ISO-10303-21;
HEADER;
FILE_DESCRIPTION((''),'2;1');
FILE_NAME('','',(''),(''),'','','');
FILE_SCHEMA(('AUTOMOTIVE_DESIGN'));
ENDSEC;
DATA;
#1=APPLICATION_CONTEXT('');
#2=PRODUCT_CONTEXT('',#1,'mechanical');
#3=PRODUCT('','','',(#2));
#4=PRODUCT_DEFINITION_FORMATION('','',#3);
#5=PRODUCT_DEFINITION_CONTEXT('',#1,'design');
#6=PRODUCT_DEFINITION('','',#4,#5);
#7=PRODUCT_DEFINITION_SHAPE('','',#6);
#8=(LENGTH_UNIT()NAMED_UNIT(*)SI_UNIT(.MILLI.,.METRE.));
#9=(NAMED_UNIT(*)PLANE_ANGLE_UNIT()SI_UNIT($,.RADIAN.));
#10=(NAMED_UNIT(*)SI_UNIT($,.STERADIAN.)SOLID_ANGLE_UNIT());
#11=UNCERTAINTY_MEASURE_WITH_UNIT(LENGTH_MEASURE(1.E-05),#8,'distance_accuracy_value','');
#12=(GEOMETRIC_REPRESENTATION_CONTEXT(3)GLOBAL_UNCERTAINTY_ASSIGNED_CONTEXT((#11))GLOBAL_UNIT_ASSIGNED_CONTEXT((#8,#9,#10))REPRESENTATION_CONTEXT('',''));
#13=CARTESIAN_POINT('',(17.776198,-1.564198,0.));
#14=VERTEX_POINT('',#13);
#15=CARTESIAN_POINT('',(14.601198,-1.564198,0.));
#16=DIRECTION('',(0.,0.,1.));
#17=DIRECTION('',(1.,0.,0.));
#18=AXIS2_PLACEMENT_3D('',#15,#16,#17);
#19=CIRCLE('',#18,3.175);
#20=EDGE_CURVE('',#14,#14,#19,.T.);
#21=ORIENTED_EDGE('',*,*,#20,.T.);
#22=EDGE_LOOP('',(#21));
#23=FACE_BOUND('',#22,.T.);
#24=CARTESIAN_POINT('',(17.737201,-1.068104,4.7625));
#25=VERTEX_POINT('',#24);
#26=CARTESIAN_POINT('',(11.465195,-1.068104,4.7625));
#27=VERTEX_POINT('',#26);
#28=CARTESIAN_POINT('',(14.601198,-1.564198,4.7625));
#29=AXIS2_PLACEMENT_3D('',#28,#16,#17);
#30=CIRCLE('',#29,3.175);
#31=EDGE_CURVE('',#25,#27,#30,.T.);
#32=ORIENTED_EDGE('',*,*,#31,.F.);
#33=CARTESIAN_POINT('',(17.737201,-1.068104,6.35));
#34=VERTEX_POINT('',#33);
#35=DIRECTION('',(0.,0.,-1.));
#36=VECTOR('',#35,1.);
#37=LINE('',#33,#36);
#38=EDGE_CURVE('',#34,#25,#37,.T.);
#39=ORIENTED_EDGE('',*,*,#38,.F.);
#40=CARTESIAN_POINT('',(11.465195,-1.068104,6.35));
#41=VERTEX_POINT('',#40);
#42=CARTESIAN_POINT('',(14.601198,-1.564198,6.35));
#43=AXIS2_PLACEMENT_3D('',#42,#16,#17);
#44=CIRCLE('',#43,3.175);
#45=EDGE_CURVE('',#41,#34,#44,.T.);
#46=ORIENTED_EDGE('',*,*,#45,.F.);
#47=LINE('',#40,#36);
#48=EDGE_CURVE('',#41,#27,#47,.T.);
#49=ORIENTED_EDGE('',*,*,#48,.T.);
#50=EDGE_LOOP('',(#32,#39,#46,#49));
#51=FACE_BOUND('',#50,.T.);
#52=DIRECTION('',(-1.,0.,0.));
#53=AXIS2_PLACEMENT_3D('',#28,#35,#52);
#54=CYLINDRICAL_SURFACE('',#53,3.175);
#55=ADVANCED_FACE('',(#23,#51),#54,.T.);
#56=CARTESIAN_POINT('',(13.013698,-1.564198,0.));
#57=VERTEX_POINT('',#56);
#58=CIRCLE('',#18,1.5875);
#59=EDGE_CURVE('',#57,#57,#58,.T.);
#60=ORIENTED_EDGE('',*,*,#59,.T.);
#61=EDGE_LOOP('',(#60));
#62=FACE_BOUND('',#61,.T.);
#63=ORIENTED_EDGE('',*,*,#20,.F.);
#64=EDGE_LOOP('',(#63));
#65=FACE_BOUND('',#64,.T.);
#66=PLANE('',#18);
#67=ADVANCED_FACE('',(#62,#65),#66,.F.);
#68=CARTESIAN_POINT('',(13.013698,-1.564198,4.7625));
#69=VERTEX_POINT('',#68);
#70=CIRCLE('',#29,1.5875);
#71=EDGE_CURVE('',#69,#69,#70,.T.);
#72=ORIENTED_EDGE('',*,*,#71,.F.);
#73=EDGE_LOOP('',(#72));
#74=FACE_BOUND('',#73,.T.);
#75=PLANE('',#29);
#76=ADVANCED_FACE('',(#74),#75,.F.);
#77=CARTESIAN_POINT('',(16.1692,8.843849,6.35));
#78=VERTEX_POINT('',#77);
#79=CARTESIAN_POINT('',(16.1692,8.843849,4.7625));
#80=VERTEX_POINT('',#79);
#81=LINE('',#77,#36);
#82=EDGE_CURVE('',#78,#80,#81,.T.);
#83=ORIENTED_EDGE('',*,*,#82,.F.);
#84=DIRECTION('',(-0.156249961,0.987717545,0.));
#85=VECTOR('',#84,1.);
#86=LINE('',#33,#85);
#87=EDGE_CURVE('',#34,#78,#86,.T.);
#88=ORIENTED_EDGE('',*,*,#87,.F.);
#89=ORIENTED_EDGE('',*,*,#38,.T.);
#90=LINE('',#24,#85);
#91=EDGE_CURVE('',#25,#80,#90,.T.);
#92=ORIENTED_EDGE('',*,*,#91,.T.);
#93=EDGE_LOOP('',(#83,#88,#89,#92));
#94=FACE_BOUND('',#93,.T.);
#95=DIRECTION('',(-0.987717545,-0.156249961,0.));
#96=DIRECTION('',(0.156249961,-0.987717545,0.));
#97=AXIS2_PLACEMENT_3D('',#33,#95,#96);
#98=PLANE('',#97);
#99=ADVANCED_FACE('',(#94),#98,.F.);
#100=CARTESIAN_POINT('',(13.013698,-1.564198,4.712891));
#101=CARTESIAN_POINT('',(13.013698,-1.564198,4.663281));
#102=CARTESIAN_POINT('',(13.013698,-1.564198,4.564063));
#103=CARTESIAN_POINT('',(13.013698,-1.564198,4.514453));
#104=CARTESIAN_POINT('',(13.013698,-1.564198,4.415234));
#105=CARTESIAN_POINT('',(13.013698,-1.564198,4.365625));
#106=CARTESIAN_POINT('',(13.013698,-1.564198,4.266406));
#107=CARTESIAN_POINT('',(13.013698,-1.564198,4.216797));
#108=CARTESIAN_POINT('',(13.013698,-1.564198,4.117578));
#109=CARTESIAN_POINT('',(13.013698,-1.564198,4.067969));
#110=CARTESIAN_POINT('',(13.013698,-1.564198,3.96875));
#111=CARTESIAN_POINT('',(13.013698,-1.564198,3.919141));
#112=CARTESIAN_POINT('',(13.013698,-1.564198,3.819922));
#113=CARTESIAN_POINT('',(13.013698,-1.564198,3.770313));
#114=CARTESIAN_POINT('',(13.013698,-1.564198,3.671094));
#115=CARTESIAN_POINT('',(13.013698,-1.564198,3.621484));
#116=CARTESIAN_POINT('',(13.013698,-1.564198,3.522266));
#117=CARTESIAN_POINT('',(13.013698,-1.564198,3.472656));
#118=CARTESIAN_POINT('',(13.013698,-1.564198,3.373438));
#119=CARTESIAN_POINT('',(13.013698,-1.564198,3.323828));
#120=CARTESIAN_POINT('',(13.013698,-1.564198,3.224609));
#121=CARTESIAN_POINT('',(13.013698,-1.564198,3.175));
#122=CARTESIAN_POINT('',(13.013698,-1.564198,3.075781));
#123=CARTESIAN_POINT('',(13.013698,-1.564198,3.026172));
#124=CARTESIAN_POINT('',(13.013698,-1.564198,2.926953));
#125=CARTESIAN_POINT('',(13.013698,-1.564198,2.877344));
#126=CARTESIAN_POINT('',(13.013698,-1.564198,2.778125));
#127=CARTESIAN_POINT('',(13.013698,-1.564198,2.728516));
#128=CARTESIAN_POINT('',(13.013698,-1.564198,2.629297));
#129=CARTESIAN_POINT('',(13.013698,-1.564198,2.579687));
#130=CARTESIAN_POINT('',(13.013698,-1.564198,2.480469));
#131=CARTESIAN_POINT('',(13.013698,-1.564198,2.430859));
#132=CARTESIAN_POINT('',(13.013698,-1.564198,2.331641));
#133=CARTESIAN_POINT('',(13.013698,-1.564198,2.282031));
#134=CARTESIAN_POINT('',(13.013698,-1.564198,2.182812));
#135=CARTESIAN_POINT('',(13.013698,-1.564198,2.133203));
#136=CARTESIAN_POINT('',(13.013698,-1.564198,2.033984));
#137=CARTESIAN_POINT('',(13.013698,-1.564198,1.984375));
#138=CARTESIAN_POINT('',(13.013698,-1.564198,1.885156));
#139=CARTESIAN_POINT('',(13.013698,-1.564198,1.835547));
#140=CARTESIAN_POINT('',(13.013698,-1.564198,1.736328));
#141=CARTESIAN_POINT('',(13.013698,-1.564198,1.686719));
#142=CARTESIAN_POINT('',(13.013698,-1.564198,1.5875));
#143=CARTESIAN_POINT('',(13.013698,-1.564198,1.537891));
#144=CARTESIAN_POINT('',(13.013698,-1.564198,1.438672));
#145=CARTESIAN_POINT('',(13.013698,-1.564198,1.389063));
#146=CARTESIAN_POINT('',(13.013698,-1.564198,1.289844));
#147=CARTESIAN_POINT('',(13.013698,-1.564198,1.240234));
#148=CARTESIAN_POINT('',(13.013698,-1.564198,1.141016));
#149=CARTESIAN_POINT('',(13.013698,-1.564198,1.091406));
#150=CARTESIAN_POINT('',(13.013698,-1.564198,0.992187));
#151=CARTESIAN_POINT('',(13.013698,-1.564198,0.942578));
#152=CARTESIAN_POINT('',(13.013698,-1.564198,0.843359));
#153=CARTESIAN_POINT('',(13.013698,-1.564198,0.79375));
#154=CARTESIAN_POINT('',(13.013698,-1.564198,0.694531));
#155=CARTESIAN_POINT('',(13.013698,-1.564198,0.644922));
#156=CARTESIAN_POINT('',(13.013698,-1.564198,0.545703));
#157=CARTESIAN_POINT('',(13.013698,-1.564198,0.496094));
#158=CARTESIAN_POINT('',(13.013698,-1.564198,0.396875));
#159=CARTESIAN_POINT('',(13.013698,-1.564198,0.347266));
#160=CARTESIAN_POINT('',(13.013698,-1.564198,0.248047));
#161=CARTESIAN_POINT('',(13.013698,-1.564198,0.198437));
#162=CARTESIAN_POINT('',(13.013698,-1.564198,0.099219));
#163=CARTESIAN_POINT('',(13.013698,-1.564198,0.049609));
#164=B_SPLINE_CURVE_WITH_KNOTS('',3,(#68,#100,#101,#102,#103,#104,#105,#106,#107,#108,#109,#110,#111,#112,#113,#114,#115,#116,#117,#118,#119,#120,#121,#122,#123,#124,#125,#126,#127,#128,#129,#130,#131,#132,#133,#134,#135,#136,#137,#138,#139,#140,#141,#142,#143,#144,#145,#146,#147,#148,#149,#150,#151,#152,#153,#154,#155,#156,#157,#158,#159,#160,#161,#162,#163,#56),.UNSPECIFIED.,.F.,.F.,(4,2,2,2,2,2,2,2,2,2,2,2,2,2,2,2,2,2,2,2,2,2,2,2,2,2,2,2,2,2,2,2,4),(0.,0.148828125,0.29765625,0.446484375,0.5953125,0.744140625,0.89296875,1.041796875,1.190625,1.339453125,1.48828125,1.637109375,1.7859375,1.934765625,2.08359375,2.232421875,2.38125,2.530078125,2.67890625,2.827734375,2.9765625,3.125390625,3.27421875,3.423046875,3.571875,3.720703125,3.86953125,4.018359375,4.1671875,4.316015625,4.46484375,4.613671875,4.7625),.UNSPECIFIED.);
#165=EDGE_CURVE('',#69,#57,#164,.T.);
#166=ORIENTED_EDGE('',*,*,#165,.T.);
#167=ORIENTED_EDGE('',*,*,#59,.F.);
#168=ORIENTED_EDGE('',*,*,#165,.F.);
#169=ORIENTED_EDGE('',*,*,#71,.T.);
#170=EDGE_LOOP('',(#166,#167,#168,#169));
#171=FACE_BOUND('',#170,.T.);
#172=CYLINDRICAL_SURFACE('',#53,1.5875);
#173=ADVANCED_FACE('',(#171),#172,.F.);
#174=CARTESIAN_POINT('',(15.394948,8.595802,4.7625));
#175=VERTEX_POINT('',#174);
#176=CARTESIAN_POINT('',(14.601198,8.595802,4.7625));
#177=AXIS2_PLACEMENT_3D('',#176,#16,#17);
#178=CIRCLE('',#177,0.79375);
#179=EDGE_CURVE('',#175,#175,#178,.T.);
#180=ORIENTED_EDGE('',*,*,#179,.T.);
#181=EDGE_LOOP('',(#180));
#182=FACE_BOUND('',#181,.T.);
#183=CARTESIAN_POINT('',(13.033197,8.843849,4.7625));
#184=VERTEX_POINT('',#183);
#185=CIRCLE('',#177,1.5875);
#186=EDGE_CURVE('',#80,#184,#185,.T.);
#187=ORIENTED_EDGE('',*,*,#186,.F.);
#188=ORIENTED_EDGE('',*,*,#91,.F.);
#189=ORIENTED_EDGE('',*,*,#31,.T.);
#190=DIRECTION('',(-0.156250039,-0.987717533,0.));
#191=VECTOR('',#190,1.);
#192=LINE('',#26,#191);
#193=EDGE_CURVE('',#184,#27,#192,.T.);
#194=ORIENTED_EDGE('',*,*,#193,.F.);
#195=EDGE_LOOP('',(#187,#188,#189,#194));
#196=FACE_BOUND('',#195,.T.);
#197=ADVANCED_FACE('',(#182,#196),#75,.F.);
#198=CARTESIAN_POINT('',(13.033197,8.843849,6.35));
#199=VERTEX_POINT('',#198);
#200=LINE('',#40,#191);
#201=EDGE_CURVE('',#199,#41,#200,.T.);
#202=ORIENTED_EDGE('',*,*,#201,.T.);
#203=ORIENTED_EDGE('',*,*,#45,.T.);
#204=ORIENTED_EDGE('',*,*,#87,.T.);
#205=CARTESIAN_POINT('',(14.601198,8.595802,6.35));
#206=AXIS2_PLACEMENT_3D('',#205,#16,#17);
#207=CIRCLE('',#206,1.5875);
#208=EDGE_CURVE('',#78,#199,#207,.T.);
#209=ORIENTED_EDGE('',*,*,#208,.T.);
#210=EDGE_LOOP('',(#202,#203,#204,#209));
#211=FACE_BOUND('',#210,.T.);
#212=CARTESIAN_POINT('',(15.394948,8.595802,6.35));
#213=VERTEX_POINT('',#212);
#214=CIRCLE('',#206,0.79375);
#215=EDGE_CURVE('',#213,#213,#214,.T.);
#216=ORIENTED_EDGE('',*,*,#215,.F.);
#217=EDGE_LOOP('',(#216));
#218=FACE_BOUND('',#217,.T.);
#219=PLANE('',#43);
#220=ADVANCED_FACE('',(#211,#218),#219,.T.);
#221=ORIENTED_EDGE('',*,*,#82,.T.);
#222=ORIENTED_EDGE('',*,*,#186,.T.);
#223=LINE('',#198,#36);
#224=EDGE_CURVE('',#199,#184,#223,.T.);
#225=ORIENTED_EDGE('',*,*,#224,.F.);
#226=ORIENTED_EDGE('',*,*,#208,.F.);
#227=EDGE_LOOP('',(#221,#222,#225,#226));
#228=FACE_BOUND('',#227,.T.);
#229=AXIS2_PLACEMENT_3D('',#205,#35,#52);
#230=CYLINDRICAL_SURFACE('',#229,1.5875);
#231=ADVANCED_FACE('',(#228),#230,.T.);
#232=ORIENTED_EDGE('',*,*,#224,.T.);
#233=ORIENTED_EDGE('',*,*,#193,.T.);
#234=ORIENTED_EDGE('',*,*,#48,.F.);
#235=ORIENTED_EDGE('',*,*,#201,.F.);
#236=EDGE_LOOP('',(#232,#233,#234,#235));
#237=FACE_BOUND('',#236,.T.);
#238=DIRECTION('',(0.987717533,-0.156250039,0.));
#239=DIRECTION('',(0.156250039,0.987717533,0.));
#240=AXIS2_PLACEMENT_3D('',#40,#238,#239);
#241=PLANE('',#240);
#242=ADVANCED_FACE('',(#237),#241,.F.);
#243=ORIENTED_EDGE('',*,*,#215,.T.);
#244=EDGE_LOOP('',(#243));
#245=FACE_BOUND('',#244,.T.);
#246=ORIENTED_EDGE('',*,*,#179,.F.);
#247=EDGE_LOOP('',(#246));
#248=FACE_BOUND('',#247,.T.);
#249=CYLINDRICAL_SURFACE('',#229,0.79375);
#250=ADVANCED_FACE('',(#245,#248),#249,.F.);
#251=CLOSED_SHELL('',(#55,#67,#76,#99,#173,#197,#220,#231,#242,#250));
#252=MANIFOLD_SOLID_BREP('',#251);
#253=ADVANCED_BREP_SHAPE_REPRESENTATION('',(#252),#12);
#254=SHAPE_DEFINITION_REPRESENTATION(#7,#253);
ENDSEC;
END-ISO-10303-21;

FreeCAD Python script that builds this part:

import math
import FreeCAD as App
import Part
import Sketcher

V = App.Vector
Q = App.Units.Quantity

doc = App.newDocument("Part")
params = doc.addObject("Spreadsheet::Sheet", "Params")
for row, (alias, value) in enumerate([
    ("sketch1_diameter", "0.25 in"),
    ("sketch1_diameter2", "0.125 in"),
    ("pad1_length", "0.1875 in"),
    ("sketch2_diameter", "0.0625 in"),
    ("sketch2_radius", "0.125 in"),
    ("sketch2_radius2", "0.0625 in"),
    ("pad2_length", "0.0625 in"),
], start=1):
    params.set(f"A{row}", alias)
    params.set(f"B{row}", "=" + value)
    params.setAlias(f"B{row}", alias)

body = doc.addObject("PartDesign::Body", "Body")

# Sketch on XY plane
sketch1 = doc.addObject("Sketcher::SketchObject", "Sketch")
body.addObject(sketch1)
sketch1.AttachmentSupport = (doc.XY_Plane, [""])
sketch1.MapMode = "FlatFace"
sketch1.addGeometry(Part.Circle(V(14.6, -1.6, 0), V(0, 0, 1), 3.2), False)
sketch1.addGeometry(Part.Circle(V(14.6, -1.6, 0), V(0, 0, 1), 1.6), False)
sketch1.addConstraint(Sketcher.Constraint("Coincident", 1, 3, 0, 3))
sketch1.addConstraint(Sketcher.Constraint("Diameter", 0, Q("0.25 in")))
sketch1.addConstraint(Sketcher.Constraint("Diameter", 1, Q("0.125 in")))
sketch1.addConstraint(Sketcher.Constraint("DistanceX", -1, 1, 0, 3, 14.601198))
sketch1.addConstraint(Sketcher.Constraint("DistanceY", 0, 3, -1, 1, 1.564198))
sketch1.setExpression("Constraints[1]", "Params.sketch1_diameter")
sketch1.setExpression("Constraints[2]", "Params.sketch1_diameter2")
pad1 = doc.addObject("PartDesign::Pad", "Pad")
body.addObject(pad1)
pad1.Profile = sketch1
pad1.setExpression("Length", "Params.pad1_length")

# Sketch on XY plane
sketch2 = doc.addObject("Sketcher::SketchObject", "Sketch001")
body.addObject(sketch2)
sketch2.AttachmentSupport = (doc.XY_Plane, [""])
sketch2.MapMode = "FlatFace"
sketch2.AttachmentOffset = App.Placement(V(0, 0, 0.1875 * 25.4), App.Rotation())
sketch2.addGeometry(Part.LineSegment(V(13, 8.8, 0), V(11.5, -1.1, 0)), False)
sketch2.addGeometry(Part.ArcOfCircle(Part.Circle(V(14.6, -1.6, 0), V(0, 0, 1), 3.2), math.radians(171), math.radians(369)), False)
sketch2.addGeometry(Part.LineSegment(V(17.7, -1.1, 0), V(16.2, 8.8, 0)), False)
sketch2.addGeometry(Part.ArcOfCircle(Part.Circle(V(14.6, 8.6, 0), V(0, 0, 1), 1.6), math.radians(9), math.radians(171)), False)
sketch2.addGeometry(Part.Circle(V(14.6, 8.6, 0), V(0, 0, 1), 0.8), False)
sketch2.addConstraint(Sketcher.Constraint("Tangent", 0, 2, 1, 1))
sketch2.addConstraint(Sketcher.Constraint("Tangent", 1, 2, 2, 1))
sketch2.addConstraint(Sketcher.Constraint("Tangent", 2, 2, 3, 1))
sketch2.addConstraint(Sketcher.Constraint("Tangent", 3, 2, 0, 1))
sketch2.addConstraint(Sketcher.Constraint("Coincident", 4, 3, 3, 3))
sketch2.addConstraint(Sketcher.Constraint("Horizontal", 0, 2, 1, 2))
sketch2.addConstraint(Sketcher.Constraint("Diameter", 4, Q("0.0625 in")))
sketch2.addConstraint(Sketcher.Constraint("Radius", 1, Q("0.125 in")))
sketch2.addConstraint(Sketcher.Constraint("Radius", 3, Q("0.0625 in")))
sketch2.addConstraint(Sketcher.Constraint("DistanceY", 1, 3, 3, 3, Q("0.4 in")))
sketch2.addConstraint(Sketcher.Constraint("DistanceX", -1, 1, 3, 3, 14.601198))
sketch2.addConstraint(Sketcher.Constraint("DistanceY", -1, 1, 2, 2, 8.843849))
sketch2.setExpression("Constraints[6]", "Params.sketch2_diameter")
sketch2.setExpression("Constraints[7]", "Params.sketch2_radius")
sketch2.setExpression("Constraints[8]", "Params.sketch2_radius2")
pad2 = doc.addObject("PartDesign::Pad", "Pad001")
body.addObject(pad2)
pad2.Profile = sketch2
pad2.setExpression("Length", "Params.pad2_length")

doc.recompute()
